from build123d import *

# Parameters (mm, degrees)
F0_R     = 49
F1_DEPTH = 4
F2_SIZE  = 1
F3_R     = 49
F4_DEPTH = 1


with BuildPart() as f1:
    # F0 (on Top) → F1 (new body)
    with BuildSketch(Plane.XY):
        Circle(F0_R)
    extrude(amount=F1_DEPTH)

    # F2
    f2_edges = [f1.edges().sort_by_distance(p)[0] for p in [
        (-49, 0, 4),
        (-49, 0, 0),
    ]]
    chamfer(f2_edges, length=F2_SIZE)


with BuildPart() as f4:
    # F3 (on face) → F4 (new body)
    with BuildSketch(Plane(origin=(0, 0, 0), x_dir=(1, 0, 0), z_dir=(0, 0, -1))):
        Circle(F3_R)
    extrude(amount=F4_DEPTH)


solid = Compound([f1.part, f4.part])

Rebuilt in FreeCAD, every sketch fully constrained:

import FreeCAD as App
import Part
import Sketcher
from FreeCAD import Vector
Q = App.Units.Quantity


def edges_at(feature, points):
    """Names of the edges that pass closest to the given points."""
    edges = feature.Shape.Edges
    near = lambda p: min(range(len(edges)), key=lambda i: edges[i].distToShape(Part.Vertex(*p))[0])
    return sorted({f"Edge{near(p) + 1}" for p in points})

doc = App.newDocument("Part")
body = doc.addObject("PartDesign::Body", "Body")

sketch1 = body.newObject("Sketcher::SketchObject", "Sketch")
sketch1.AttachmentSupport = (doc.getObject("XY_Plane"), [""])
sketch1.MapMode = "FlatFace"
sketch1.addGeometry(Part.Circle(Vector(0, 0, 0), Vector(0, 0, 1), 49), False)
sketch1.addConstraint(Sketcher.Constraint("Coincident", 0, 3, -1, 1))
sketch1.addConstraint(Sketcher.Constraint("Diameter", 0, Q("98 mm")))
pad1 = body.newObject("PartDesign::Pad", "Pad")
pad1.Profile = sketch1
pad1.Length = 4
doc.recompute()

chamfer = body.newObject("PartDesign::Chamfer", "Chamfer")
chamfer.Base = (pad1, edges_at(pad1, [(-49, 0, 4), (-49, 0, 0)]))
chamfer.Size = 1
body2 = doc.addObject("PartDesign::Body", "Body001")

sketch2 = body2.newObject("Sketcher::SketchObject", "Sketch001")
sketch2.AttachmentSupport = (doc.getObject("XY_Plane001"), [""])
sketch2.MapMode = "FlatFace"
sketch2.addGeometry(Part.Circle(Vector(0, 0, 0), Vector(0, 0, 1), 49), False)
sketch2.addConstraint(Sketcher.Constraint("Coincident", 0, 3, -1, 1))
sketch2.addConstraint(Sketcher.Constraint("Diameter", 0, Q("98 mm")))
pad2 = body2.newObject("PartDesign::Pad", "Pad001")
pad2.Profile = sketch2
pad2.Length = 1
pad2.Reversed = True

doc.recompute()
